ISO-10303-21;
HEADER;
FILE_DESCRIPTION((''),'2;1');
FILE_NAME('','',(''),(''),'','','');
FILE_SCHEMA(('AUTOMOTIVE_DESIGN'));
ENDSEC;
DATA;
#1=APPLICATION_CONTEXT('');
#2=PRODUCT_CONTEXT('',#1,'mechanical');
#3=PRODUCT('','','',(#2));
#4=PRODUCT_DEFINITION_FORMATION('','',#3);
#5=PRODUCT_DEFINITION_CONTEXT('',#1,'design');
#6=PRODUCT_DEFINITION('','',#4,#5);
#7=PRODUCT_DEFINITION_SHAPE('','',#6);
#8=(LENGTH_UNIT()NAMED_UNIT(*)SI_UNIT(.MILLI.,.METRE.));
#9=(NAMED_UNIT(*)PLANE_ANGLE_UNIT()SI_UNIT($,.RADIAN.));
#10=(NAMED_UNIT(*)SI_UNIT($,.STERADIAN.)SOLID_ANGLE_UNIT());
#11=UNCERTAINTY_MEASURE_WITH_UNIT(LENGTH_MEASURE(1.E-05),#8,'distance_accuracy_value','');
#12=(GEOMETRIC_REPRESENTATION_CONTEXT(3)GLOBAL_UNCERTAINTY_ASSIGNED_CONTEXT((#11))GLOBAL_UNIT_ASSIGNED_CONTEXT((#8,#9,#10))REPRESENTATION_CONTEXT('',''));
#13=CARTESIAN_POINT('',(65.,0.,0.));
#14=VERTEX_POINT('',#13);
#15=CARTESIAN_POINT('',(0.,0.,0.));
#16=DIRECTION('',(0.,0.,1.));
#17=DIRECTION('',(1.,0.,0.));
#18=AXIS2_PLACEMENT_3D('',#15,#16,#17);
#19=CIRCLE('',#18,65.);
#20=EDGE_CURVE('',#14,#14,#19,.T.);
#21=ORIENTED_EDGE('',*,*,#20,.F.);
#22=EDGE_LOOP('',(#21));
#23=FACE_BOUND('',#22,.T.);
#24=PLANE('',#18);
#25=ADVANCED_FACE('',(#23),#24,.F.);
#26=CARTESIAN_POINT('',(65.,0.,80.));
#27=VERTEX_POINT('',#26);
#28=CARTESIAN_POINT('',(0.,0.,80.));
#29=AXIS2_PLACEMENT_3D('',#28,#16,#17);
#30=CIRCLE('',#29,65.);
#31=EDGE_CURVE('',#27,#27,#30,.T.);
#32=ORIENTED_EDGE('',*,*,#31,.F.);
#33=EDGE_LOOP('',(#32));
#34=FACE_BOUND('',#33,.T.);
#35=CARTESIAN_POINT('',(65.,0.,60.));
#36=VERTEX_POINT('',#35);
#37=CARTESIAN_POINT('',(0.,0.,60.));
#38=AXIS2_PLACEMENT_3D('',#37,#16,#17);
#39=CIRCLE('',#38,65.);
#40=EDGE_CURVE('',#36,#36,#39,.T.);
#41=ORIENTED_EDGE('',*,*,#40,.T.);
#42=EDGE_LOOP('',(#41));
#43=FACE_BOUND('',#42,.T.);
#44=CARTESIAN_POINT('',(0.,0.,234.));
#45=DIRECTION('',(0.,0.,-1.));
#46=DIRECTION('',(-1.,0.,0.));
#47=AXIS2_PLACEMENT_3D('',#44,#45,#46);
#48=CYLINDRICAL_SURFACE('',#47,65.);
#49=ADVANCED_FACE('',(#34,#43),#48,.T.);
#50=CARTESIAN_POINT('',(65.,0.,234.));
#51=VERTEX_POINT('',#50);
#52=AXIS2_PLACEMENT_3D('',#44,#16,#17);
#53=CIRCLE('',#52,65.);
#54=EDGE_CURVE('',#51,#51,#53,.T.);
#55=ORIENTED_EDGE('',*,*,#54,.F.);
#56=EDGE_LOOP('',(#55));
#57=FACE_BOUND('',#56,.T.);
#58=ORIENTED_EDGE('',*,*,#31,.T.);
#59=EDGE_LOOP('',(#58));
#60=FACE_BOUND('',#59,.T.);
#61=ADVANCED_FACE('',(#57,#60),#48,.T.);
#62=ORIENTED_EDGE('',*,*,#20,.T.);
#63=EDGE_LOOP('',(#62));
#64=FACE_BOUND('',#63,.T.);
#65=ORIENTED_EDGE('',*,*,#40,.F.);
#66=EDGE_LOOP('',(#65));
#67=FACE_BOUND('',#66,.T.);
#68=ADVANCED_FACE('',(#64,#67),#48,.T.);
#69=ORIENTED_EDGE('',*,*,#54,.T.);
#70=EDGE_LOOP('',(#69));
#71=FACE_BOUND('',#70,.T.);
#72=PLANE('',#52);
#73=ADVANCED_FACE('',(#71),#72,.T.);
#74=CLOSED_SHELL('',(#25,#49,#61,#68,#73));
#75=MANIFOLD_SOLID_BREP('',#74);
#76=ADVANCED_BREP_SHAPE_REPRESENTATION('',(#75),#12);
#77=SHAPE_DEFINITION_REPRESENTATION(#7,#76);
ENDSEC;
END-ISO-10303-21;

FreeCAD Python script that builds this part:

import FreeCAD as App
import Part
import Sketcher

V = App.Vector
Q = App.Units.Quantity

doc = App.newDocument("Part")
params = doc.addObject("Spreadsheet::Sheet", "Params")
for row, (alias, value) in enumerate([
    ("sketch1_diameter", "130 mm"),
    ("pad1_length", "234 mm"),
], start=1):
    params.set(f"A{row}", alias)
    params.set(f"B{row}", "=" + value)
    params.setAlias(f"B{row}", alias)

body = doc.addObject("PartDesign::Body", "Body")

sketch1 = body.newObject("Sketcher::SketchObject", "Sketch")
sketch1.AttachmentSupport = (doc.getObject("XY_Plane"), [""])
sketch1.MapMode = "FlatFace"
sketch1.addGeometry(Part.Circle(V(0, 0, 0), V(0, 0, 1), 65), False)
sketch1.addConstraint(Sketcher.Constraint("Coincident", 0, 3, -1, 1))
sketch1.addConstraint(Sketcher.Constraint("Diameter", 0, Q("130 mm")))
sketch1.setExpression("Constraints[1]", "Params.sketch1_diameter")
pad1 = body.newObject("PartDesign::Pad", "Pad")
pad1.Profile = sketch1
pad1.setExpression("Length", "Params.pad1_length")

doc.recompute()
